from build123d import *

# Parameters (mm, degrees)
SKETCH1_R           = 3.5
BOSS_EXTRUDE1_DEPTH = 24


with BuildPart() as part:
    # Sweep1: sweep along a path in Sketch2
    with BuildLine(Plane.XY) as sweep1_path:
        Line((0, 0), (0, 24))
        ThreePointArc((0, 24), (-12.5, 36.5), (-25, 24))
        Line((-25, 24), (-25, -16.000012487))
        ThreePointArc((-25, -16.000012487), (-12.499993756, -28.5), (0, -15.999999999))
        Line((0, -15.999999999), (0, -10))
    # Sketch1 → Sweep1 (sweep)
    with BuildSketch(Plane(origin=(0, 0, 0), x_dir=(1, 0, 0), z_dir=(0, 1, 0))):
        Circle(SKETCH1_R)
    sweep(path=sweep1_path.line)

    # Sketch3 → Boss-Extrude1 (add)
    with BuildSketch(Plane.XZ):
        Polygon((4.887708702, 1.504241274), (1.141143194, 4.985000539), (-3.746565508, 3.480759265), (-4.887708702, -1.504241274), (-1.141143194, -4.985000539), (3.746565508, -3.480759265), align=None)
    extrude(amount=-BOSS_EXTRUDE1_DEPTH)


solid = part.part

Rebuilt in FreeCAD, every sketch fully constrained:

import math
import FreeCAD as App
import Part
import Sketcher

V = App.Vector

doc = App.newDocument("Part")
params = doc.addObject("Spreadsheet::Sheet", "Params")
for row, (alias, value) in enumerate([
    ("sketch1_diameter", "7 mm"),
    ("sketch2_radius", "12.5 mm"),
    ("sketch2_height", "24 mm"),
    ("sketch2_height2", "6 mm"),
    ("pad1_length", "24 mm"),
], start=1):
    params.set(f"A{row}", alias)
    params.set(f"B{row}", "=" + value)
    params.setAlias(f"B{row}", alias)

body = doc.addObject("PartDesign::Body", "Body")

# Sketch on XZ plane
sketch1 = doc.addObject("Sketcher::SketchObject", "Sketch")
body.addObject(sketch1)
sketch1.AttachmentSupport = (doc.XZ_Plane, [""])
sketch1.MapMode = "FlatFace"
sketch1.addGeometry(Part.Circle(V(0, 0, 0), V(0, 0, 1), 3.5), False)
sketch1.addConstraint([
    Sketcher.Constraint("Coincident", 0, 3, -1, 1),
    Sketcher.Constraint("Diameter", 0, 7.0),
])
sketch1.setExpression("Constraints[1]", "Params.sketch1_diameter")

# Sketch on XY plane
sketch2 = doc.addObject("Sketcher::SketchObject", "Sketch001")
body.addObject(sketch2)
sketch2.AttachmentSupport = (doc.XY_Plane, [""])
sketch2.MapMode = "FlatFace"
sketch2.addGeometry([
    Part.LineSegment(V(0, 0, 0), V(0, 24, 0)),  # 0
    Part.ArcOfCircle(Part.Circle(V(-12, 24, 0), V(0, 0, 1), 12), math.radians(0), math.radians(180)),  # 1
    Part.LineSegment(V(-25, 24, 0), V(-25, -16, 0)),  # 2
    Part.ArcOfCircle(Part.Circle(V(-12, -16, 0), V(0, 0, 1), 12), math.radians(-180), math.radians(0)),  # 3
    Part.LineSegment(V(0, -16, 0), V(0, -10, 0)),  # 4
], False)
sketch2.addConstraint([
    Sketcher.Constraint("Tangent", 0, 2, 1, 1),
    Sketcher.Constraint("Tangent", 1, 2, 2, 1),
    Sketcher.Constraint("Tangent", 2, 2, 3, 1),
    Sketcher.Constraint("Tangent", 3, 2, 4, 1),
    Sketcher.Constraint("Vertical", 0),
    Sketcher.Constraint("Vertical", 2),
    Sketcher.Constraint("Vertical", 4),
    Sketcher.Constraint("Coincident", 0, 1, -1, 1),
    Sketcher.Constraint("Equal", 1, 3),
    Sketcher.Constraint("Radius", 1, 12.5),
    Sketcher.Constraint("DistanceY", 0, 1, 0, 2, 24.0),
    Sketcher.Constraint("DistanceY", 4, 1, 4, 2, 6.0),
    Sketcher.Constraint("DistanceY", 3, 3, -1, 1, 16.0),
])
sketch2.setExpression("Constraints[9]", "Params.sketch2_radius")
sketch2.setExpression("Constraints[10]", "Params.sketch2_height")
sketch2.setExpression("Constraints[11]", "Params.sketch2_height2")
doc.recompute()

additivepipe = doc.addObject("PartDesign::AdditivePipe", "AdditivePipe")
body.addObject(additivepipe)
additivepipe.Profile = sketch1
additivepipe.Spine = (sketch2, ["Edge1", "Edge2", "Edge3", "Edge4", "Edge5"])

# Sketch on XZ plane
sketch3 = doc.addObject("Sketcher::SketchObject", "Sketch002")
body.addObject(sketch3)
sketch3.AttachmentSupport = (doc.XZ_Plane, [""])
sketch3.MapMode = "FlatFace"
sketch3.addGeometry([
    Part.LineSegment(V(5, 2, 0), V(1, 5, 0)),  # 0
    Part.LineSegment(V(1, 5, 0), V(-4, 3, 0)),  # 1
    Part.LineSegment(V(-4, 3, 0), V(-5, -2, 0)),  # 2
    Part.LineSegment(V(-5, -2, 0), V(-1, -5, 0)),  # 3
    Part.LineSegment(V(-1, -5, 0), V(4, -3, 0)),  # 4
    Part.LineSegment(V(4, -3, 0), V(5, 2, 0)),  # 5
], False)
sketch3.addConstraint([
    Sketcher.Constraint("Coincident", 0, 2, 1, 1),
    Sketcher.Constraint("Coincident", 1, 2, 2, 1),
    Sketcher.Constraint("Coincident", 2, 2, 3, 1),
    Sketcher.Constraint("Coincident", 3, 2, 4, 1),
    Sketcher.Constraint("Coincident", 4, 2, 5, 1),
    Sketcher.Constraint("Coincident", 5, 2, 0, 1),
    Sketcher.Constraint("Symmetric", 0, 2, 3, 2, -1, 1),
    Sketcher.Constraint("Symmetric", 1, 2, 4, 2, -1, 1),
    Sketcher.Constraint("Symmetric", 2, 2, 5, 2, -1, 1),
    Sketcher.Constraint("Equal", 0, 1),
    Sketcher.Constraint("Equal", 1, 2),
    Sketcher.Constraint("DistanceY", 3, 2, 0, 2, 9.970001),
    Sketcher.Constraint("DistanceY", 2, 2, 1, 2, 4.985001),
    Sketcher.Constraint("DistanceY", -1, 1, 1, 2, 3.480759),
    Sketcher.Constraint("DistanceX", 2, 2, -1, 1, 4.887709),
])
pad1 = doc.addObject("PartDesign::Pad", "Pad")
body.addObject(pad1)
pad1.Profile = sketch3
pad1.setExpression("Length", "Params.pad1_length")
pad1.Reversed = True

doc.recompute()
